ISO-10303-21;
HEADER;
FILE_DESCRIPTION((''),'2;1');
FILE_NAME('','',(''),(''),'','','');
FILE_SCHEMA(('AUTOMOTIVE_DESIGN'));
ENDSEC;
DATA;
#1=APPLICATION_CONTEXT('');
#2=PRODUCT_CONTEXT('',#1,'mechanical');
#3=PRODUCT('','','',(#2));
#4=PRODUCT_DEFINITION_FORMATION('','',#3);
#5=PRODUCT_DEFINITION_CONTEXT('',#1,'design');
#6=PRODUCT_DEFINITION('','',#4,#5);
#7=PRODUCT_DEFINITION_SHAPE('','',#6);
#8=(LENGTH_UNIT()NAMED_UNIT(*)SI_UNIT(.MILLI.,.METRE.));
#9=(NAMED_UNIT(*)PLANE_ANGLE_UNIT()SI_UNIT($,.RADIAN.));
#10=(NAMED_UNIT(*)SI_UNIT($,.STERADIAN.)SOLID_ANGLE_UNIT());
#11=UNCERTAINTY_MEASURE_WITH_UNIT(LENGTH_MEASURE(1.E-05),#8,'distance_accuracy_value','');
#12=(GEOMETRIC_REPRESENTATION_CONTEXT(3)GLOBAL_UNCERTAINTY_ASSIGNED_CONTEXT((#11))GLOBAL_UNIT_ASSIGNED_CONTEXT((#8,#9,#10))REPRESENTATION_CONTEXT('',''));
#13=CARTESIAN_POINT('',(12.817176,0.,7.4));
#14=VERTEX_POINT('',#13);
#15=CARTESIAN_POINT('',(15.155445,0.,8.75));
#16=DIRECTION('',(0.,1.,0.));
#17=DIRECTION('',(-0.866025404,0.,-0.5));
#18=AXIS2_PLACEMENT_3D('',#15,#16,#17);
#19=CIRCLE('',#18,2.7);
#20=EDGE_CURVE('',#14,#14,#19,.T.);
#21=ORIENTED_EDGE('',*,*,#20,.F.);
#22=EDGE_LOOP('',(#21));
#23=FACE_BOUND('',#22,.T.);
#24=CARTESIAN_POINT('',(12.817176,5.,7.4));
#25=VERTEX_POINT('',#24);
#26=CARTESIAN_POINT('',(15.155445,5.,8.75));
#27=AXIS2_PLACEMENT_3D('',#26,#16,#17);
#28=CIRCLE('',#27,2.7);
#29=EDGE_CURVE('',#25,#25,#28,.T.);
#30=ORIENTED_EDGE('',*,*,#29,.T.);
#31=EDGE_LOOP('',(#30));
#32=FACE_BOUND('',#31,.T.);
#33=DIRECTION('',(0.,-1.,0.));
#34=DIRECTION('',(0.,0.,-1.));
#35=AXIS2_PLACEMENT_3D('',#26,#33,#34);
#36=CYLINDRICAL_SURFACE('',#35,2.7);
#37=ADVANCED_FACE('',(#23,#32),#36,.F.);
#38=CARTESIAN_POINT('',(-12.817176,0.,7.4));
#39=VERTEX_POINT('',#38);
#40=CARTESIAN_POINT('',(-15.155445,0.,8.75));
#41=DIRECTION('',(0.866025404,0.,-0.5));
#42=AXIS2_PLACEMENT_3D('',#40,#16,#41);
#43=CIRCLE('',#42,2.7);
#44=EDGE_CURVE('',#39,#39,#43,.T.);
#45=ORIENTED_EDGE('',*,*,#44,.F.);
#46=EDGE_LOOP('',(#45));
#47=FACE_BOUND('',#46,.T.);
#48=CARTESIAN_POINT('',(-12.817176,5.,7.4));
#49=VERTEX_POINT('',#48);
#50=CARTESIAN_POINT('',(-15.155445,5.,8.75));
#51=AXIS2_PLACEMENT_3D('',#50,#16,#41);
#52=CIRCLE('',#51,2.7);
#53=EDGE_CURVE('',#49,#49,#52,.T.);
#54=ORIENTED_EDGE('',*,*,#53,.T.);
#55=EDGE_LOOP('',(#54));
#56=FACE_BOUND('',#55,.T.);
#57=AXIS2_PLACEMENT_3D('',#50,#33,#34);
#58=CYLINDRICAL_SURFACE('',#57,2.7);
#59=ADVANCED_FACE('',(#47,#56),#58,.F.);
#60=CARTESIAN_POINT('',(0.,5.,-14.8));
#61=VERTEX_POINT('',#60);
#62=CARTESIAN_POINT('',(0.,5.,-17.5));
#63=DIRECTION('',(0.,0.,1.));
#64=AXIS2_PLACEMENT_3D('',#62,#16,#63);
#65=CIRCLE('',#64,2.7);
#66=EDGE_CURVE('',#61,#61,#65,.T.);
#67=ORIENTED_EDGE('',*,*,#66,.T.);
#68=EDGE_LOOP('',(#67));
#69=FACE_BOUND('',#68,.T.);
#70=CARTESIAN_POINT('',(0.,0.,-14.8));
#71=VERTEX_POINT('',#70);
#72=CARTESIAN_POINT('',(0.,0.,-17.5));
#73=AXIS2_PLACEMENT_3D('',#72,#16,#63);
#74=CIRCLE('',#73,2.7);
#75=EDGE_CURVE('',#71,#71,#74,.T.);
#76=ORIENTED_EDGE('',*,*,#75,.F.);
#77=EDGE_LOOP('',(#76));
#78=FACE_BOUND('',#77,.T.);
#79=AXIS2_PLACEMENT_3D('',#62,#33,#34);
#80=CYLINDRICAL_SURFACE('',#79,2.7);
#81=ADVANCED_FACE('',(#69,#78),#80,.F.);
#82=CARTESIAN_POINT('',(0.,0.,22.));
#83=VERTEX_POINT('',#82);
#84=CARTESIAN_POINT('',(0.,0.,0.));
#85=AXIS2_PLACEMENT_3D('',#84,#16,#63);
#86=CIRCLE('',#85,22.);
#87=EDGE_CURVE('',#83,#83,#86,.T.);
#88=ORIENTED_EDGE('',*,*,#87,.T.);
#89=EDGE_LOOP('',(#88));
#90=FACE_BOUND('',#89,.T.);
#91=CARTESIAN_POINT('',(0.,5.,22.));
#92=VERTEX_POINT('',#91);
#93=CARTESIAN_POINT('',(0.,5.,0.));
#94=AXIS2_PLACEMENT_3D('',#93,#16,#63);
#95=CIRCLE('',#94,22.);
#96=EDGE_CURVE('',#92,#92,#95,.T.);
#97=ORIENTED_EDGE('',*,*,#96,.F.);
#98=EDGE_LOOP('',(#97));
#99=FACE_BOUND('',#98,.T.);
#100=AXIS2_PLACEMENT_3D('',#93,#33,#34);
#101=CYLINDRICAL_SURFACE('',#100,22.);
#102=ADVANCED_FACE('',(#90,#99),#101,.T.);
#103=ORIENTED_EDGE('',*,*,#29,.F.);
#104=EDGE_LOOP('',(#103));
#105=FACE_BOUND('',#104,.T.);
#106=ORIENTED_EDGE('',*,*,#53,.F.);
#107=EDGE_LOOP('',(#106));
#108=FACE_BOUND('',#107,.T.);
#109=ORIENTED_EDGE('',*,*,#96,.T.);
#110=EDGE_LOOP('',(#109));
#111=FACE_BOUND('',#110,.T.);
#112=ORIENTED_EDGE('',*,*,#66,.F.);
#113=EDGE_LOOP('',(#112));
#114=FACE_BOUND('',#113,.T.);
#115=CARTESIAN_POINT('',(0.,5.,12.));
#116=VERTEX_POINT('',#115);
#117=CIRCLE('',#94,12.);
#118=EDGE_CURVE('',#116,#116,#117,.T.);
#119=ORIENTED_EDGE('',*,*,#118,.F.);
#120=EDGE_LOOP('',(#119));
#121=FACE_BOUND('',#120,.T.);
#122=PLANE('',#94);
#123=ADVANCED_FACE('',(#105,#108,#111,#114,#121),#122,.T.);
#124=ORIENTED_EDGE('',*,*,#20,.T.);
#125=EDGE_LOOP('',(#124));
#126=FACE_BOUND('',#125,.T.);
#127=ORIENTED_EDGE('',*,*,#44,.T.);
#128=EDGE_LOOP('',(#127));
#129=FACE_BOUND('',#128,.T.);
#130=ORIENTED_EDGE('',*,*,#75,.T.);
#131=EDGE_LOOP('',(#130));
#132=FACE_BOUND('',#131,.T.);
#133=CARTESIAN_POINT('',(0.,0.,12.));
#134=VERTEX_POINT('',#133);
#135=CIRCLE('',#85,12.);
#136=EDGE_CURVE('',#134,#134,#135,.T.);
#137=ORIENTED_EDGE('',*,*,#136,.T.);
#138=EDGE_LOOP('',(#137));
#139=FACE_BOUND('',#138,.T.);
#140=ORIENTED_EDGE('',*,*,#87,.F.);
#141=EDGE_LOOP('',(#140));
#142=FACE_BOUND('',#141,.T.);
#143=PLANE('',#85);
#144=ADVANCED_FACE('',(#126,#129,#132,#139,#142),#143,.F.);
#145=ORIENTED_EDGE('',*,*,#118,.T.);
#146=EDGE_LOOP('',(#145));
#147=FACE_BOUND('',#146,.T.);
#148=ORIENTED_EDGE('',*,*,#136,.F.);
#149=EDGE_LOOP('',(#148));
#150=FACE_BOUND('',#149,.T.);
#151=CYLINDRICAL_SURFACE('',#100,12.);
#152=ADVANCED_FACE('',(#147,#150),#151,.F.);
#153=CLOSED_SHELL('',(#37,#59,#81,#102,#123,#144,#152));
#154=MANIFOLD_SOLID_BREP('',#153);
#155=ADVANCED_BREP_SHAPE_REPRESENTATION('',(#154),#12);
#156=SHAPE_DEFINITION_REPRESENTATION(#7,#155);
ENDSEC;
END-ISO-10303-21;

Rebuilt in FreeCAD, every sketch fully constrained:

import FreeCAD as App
import Part
import Sketcher

V = App.Vector

doc = App.newDocument("Part")
params = doc.addObject("Spreadsheet::Sheet", "Params")
for row, (alias, value) in enumerate([
    ("sketch1_diameter", "44 mm"),
    ("sketch1_diameter2", "24 mm"),
    ("pad1_length", "5 mm"),
    ("sketch2_diameter", "5.4 mm"),
    ("pocket1_length", "65.023805 mm"),
], start=1):
    params.set(f"A{row}", alias)
    params.set(f"B{row}", "=" + value)
    params.setAlias(f"B{row}", alias)

body = doc.addObject("PartDesign::Body", "Body")

sketch1 = body.newObject("Sketcher::SketchObject", "Sketch")
sketch1.AttachmentSupport = (doc.getObject("XZ_Plane"), [""])
sketch1.MapMode = "FlatFace"
sketch1.addGeometry(Part.Circle(V(0, 0, 0), V(0, 0, 1), 22), False)
sketch1.addGeometry(Part.Circle(V(0, 0, 0), V(0, 0, 1), 12), False)
sketch1.addConstraint(Sketcher.Constraint("Coincident", 0, 3, -1, 1))
sketch1.addConstraint(Sketcher.Constraint("Coincident", 1, 3, -1, 1))
sketch1.addConstraint(Sketcher.Constraint("Diameter", 0, 44.0))
sketch1.addConstraint(Sketcher.Constraint("Diameter", 1, 24.0))
sketch1.setExpression("Constraints[2]", "Params.sketch1_diameter")
sketch1.setExpression("Constraints[3]", "Params.sketch1_diameter2")
pad1 = body.newObject("PartDesign::Pad", "Pad")
pad1.Profile = sketch1
pad1.setExpression("Length", "Params.pad1_length")
pad1.Reversed = True

sketch2 = body.newObject("Sketcher::SketchObject", "Sketch001")
sketch2.AttachmentSupport = (doc.getObject("XZ_Plane"), [""])
sketch2.MapMode = "FlatFace"
sketch2.addGeometry(Part.Circle(V(0, -17.5, 0), V(0, 0, 1), 2.7), False)
sketch2.addConstraint(Sketcher.Constraint("PointOnObject", 0, 3, -2))
sketch2.addConstraint(Sketcher.Constraint("Diameter", 0, 5.4))
sketch2.addConstraint(Sketcher.Constraint("DistanceY", 0, 3, -1, 1, 17.5))
sketch2.setExpression("Constraints[1]", "Params.sketch2_diameter")
pocket1 = body.newObject("PartDesign::Pocket", "Pocket")
pocket1.Profile = sketch2
pocket1.setExpression("Length", "Params.pocket1_length")
pocket1.Midplane = True
doc.recompute()

polarpattern = body.newObject("PartDesign::PolarPattern", "PolarPattern")
polarpattern.Originals = [pocket1]
polarpattern.Axis = (doc.getObject("Y_Axis"), [""])
polarpattern.Angle = 360
polarpattern.Occurrences = 3
body.Tip = polarpattern

doc.recompute()
